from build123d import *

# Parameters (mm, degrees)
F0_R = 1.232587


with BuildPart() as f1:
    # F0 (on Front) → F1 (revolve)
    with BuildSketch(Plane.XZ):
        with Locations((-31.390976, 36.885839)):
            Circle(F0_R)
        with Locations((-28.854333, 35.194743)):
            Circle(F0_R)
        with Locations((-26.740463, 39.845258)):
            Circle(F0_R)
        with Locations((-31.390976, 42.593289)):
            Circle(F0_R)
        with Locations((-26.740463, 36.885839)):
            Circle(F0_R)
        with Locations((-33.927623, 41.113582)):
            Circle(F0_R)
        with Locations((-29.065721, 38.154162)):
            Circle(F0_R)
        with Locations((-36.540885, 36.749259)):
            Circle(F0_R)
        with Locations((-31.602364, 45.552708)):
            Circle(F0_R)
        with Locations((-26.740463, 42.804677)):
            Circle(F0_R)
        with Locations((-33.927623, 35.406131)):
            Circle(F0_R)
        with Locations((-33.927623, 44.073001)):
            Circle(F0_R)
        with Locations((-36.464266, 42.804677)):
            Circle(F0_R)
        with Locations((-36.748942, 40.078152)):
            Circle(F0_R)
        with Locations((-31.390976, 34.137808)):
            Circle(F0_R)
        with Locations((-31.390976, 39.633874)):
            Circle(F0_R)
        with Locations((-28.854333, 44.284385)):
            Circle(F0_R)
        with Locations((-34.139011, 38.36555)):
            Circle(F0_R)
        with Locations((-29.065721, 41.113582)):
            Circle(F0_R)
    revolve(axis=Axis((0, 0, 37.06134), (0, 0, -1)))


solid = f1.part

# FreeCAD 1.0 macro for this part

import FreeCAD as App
import Part
import Sketcher
Q = App.Units.Quantity

doc = App.newDocument("Part")
body = doc.addObject("PartDesign::Body", "Body")
body.AllowCompound = True

# Sketch on XZ plane
sketch1 = body.newObject("Sketcher::SketchObject", "Sketch")
sketch1.AttachmentSupport = (doc.getObject("XZ_Plane"), [""])
sketch1.MapMode = "FlatFace"
sketch1.addGeometry([
    Part.Circle(App.Vector(-31.4, 36.9, 0), App.Vector(0, 0, 1), 1.2),  # 0
    Part.Circle(App.Vector(-28.9, 35.2, 0), App.Vector(0, 0, 1), 1.2),  # 1
    Part.Circle(App.Vector(-26.7, 39.8, 0), App.Vector(0, 0, 1), 1.2),  # 2
    Part.Circle(App.Vector(-31.4, 42.6, 0), App.Vector(0, 0, 1), 1.2),  # 3
    Part.Circle(App.Vector(-26.7, 36.9, 0), App.Vector(0, 0, 1), 1.2),  # 4
    Part.Circle(App.Vector(-33.9, 41.1, 0), App.Vector(0, 0, 1), 1.2),  # 5
    Part.Circle(App.Vector(-29.1, 38.2, 0), App.Vector(0, 0, 1), 1.2),  # 6
    Part.Circle(App.Vector(-36.5, 36.7, 0), App.Vector(0, 0, 1), 1.2),  # 7
    Part.Circle(App.Vector(-31.6, 45.6, 0), App.Vector(0, 0, 1), 1.2),  # 8
    Part.Circle(App.Vector(-26.7, 42.8, 0), App.Vector(0, 0, 1), 1.2),  # 9
    Part.Circle(App.Vector(-33.9, 35.4, 0), App.Vector(0, 0, 1), 1.2),  # 10
    Part.Circle(App.Vector(-33.9, 44.1, 0), App.Vector(0, 0, 1), 1.2),  # 11
    Part.Circle(App.Vector(-36.5, 42.8, 0), App.Vector(0, 0, 1), 1.2),  # 12
    Part.Circle(App.Vector(-36.7, 40.1, 0), App.Vector(0, 0, 1), 1.2),  # 13
    Part.Circle(App.Vector(-31.4, 34.1, 0), App.Vector(0, 0, 1), 1.2),  # 14
    Part.Circle(App.Vector(-31.4, 39.6, 0), App.Vector(0, 0, 1), 1.2),  # 15
    Part.Circle(App.Vector(-28.9, 44.3, 0), App.Vector(0, 0, 1), 1.2),  # 16
    Part.Circle(App.Vector(-34.1, 38.4, 0), App.Vector(0, 0, 1), 1.2),  # 17
    Part.Circle(App.Vector(-29.1, 41.1, 0), App.Vector(0, 0, 1), 1.2),  # 18
], False)
sketch1.addConstraint([
    Sketcher.Constraint("Equal", 0, 1),
    Sketcher.Constraint("Equal", 1, 2),
    Sketcher.Constraint("Equal", 2, 3),
    Sketcher.Constraint("Equal", 3, 4),
    Sketcher.Constraint("Equal", 4, 5),
    Sketcher.Constraint("Equal", 5, 6),
    Sketcher.Constraint("Equal", 6, 7),
    Sketcher.Constraint("Equal", 7, 8),
    Sketcher.Constraint("Equal", 8, 9),
    Sketcher.Constraint("Equal", 9, 10),
    Sketcher.Constraint("Equal", 10, 11),
    Sketcher.Constraint("Equal", 11, 12),
    Sketcher.Constraint("Equal", 12, 13),
    Sketcher.Constraint("Equal", 13, 14),
    Sketcher.Constraint("Equal", 14, 15),
    Sketcher.Constraint("Equal", 15, 16),
    Sketcher.Constraint("Equal", 16, 17),
    Sketcher.Constraint("Equal", 17, 18),
    Sketcher.Constraint("Horizontal", 0, 3, 4, 3),
    Sketcher.Constraint("Horizontal", 9, 3, 12, 3),
    Sketcher.Constraint("Horizontal", 5, 3, 18, 3),
    Sketcher.Constraint("Vertical", 0, 3, 3, 3),
    Sketcher.Constraint("Vertical", 2, 3, 4, 3),
    Sketcher.Constraint("Vertical", 4, 3, 9, 3),
    Sketcher.Constraint("Vertical", 5, 3, 10, 3),
    Sketcher.Constraint("Vertical", 10, 3, 11, 3),
    Sketcher.Constraint("Vertical", 3, 3, 14, 3),
    Sketcher.Constraint("Vertical", 14, 3, 15, 3),
    Sketcher.Constraint("Vertical", 1, 3, 16, 3),
    Sketcher.Constraint("Vertical", 6, 3, 18, 3),
    Sketcher.Constraint("Diameter", 0, Q("2.465174 mm")),
    Sketcher.Constraint("DistanceY", -1, 1, 11, 3, Q("44.073001 mm")),
    Sketcher.Constraint("DistanceX", 8, 3, 2, 3, Q("4.861901 mm")),
    Sketcher.Constraint("DistanceX", 10, 3, 6, 3, Q("4.861902 mm")),
    Sketcher.Constraint("DistanceY", -1, 1, 0, 3, Q("36.885839 mm")),
    Sketcher.Constraint("DistanceY", -1, 1, 3, 3, Q("42.593289 mm")),
    Sketcher.Constraint("DistanceX", 6, 3, -1, 1, Q("29.065721 mm")),
    Sketcher.Constraint("DistanceY", -1, 1, 7, 3, Q("36.749259 mm")),
    Sketcher.Constraint("DistanceY", -1, 1, 8, 3, Q("45.552708 mm")),
    Sketcher.Constraint("DistanceY", -1, 1, 10, 3, Q("35.406131 mm")),
    Sketcher.Constraint("DistanceX", 17, 3, -1, 1, Q("34.139011 mm")),
    Sketcher.Constraint("DistanceY", -1, 1, 17, 3, Q("38.36555 mm")),
    Sketcher.Constraint("DistanceX", 1, 3, 2, 3, Q("2.11387 mm")),
    Sketcher.Constraint("DistanceY", 0, 3, 2, 3, Q("2.959419 mm")),
    Sketcher.Constraint("DistanceX", 5, 3, 2, 3, Q("7.18716 mm")),
    Sketcher.Constraint("DistanceY", 1, 3, 5, 3, Q("5.918839 mm")),
    Sketcher.Constraint("DistanceY", 1, 3, 6, 3, Q("2.959419 mm")),
    Sketcher.Constraint("DistanceX", 7, 3, 0, 3, Q("5.149909 mm")),
    Sketcher.Constraint("DistanceX", 8, 3, 3, 3, Q("0.211388 mm")),
    Sketcher.Constraint("DistanceY", 2, 3, 9, 3, Q("2.959419 mm")),
    Sketcher.Constraint("DistanceY", 10, 3, 6, 3, Q("2.748031 mm")),
    Sketcher.Constraint("DistanceX", 12, 3, 3, 3, Q("5.07329 mm")),
    Sketcher.Constraint("DistanceX", 13, 3, 5, 3, Q("2.821319 mm")),
    Sketcher.Constraint("DistanceY", 13, 3, 5, 3, Q("1.03543 mm")),
    Sketcher.Constraint("DistanceY", 14, 3, 0, 3, Q("2.748031 mm")),
    Sketcher.Constraint("DistanceY", 6, 3, 15, 3, Q("1.479712 mm")),
    Sketcher.Constraint("DistanceY", 9, 3, 16, 3, Q("1.479708 mm")),
])
revolution = body.newObject("PartDesign::Revolution", "Revolution")
revolution.Profile = sketch1
revolution.ReferenceAxis = (sketch1, ["V_Axis"])
revolution.Angle = 360

doc.recompute()
